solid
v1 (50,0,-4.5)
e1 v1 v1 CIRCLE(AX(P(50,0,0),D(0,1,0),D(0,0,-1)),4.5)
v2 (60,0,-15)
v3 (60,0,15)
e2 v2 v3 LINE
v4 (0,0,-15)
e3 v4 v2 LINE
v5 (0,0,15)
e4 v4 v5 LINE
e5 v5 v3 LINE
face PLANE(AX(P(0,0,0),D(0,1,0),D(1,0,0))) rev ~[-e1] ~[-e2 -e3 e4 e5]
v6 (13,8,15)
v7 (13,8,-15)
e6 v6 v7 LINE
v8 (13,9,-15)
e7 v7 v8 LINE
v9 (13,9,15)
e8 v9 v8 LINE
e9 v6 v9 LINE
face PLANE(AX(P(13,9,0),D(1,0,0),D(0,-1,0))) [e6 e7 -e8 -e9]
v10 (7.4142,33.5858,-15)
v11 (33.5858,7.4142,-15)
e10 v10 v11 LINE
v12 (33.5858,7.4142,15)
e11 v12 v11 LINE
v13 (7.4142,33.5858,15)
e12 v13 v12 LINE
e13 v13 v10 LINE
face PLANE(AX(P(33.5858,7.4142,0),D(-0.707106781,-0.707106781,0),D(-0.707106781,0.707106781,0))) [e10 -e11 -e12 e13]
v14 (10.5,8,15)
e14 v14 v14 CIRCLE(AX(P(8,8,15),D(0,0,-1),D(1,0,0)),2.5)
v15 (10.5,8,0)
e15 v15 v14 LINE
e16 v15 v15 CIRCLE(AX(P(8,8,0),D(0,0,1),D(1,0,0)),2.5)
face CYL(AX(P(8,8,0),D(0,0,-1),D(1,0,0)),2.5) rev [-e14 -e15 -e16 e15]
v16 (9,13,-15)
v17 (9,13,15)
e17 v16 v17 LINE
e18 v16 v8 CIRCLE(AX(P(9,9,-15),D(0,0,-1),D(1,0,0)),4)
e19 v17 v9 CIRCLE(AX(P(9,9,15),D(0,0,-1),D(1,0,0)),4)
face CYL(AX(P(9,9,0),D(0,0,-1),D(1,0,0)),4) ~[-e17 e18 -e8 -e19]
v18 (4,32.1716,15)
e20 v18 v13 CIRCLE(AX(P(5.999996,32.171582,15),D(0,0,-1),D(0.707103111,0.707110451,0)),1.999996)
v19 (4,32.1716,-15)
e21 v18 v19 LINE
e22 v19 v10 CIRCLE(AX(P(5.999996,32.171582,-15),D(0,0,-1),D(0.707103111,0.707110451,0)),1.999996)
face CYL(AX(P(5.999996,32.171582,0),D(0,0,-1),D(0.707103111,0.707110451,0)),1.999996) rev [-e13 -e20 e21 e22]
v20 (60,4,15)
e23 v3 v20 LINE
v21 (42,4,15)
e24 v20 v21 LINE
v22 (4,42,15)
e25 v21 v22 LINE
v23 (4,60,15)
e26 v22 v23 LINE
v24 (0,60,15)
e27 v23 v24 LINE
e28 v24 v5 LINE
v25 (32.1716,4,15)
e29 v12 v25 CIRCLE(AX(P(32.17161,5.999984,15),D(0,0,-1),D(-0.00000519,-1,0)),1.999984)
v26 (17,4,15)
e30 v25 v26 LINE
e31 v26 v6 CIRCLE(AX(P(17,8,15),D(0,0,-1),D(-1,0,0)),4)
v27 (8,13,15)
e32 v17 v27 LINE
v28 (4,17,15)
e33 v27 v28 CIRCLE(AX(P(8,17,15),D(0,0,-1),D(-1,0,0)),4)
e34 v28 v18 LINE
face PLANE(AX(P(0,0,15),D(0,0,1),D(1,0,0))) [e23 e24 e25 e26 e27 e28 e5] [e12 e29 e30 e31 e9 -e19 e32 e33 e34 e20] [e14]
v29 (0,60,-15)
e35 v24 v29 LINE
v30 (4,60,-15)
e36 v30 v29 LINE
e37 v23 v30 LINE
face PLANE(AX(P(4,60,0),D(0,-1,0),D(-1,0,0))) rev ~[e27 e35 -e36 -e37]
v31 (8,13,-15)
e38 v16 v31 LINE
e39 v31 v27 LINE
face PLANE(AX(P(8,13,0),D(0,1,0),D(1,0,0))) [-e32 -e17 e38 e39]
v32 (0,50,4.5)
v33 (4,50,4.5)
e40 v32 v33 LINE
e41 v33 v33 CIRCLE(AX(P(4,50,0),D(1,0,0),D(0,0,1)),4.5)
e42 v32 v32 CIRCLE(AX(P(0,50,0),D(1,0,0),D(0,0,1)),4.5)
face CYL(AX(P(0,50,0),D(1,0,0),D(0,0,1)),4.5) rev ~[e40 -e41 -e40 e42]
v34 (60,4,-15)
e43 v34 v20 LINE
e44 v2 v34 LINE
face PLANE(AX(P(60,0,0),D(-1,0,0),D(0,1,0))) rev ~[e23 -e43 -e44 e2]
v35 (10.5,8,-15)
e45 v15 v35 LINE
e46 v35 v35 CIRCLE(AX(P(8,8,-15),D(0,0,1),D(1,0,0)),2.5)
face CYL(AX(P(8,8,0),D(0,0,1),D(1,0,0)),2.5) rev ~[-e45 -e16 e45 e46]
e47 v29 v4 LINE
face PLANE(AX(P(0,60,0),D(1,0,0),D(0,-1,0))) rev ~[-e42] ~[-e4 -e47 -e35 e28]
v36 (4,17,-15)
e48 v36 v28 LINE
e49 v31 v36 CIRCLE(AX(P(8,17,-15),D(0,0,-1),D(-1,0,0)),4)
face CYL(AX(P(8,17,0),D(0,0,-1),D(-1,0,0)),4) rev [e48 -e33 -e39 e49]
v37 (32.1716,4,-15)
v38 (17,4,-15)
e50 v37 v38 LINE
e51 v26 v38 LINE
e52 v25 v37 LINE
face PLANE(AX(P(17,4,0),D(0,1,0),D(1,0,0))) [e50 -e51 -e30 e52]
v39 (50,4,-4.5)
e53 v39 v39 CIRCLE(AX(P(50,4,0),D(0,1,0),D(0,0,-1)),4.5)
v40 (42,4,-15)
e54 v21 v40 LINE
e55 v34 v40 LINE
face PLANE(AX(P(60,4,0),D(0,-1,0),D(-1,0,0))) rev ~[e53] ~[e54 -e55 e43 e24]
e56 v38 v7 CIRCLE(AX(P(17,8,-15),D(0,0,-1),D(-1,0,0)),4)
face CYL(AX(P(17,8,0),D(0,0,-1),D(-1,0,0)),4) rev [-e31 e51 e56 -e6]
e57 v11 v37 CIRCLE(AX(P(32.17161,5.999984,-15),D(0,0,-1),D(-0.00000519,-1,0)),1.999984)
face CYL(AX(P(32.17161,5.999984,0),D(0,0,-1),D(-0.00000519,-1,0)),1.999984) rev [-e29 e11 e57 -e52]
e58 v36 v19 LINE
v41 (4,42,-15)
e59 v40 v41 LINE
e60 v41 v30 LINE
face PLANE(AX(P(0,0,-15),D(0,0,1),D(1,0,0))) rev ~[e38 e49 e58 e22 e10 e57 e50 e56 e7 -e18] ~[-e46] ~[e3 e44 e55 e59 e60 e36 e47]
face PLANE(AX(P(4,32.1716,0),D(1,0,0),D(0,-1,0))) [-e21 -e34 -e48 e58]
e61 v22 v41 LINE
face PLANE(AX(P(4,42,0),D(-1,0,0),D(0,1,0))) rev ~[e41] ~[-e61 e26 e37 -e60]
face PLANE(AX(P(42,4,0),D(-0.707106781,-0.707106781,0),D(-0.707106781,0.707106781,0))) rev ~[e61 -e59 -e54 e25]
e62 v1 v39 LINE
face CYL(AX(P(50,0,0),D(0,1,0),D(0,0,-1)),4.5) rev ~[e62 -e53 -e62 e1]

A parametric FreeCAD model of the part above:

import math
import FreeCAD as App
import Part
import Sketcher
Q = App.Units.Quantity


def add_polygon(sketch, points):
    """Adds a closed chain of lines whose ends are joined by coincident constraints."""
    first, n = sketch.GeometryCount, len(points)
    for a, b in zip(points, points[1:] + points[:1]):
        sketch.addGeometry(Part.LineSegment(App.Vector(*a, 0), App.Vector(*b, 0)), False)
    for i in range(n):
        sketch.addConstraint(Sketcher.Constraint("Coincident", first + i, 2, first + (i + 1) % n, 1))

doc = App.newDocument("Part")
body = doc.addObject("PartDesign::Body", "Body")

# Sketch on XY plane
sketch1 = body.newObject("Sketcher::SketchObject", "Sketch")
sketch1.AttachmentSupport = (doc.getObject("XY_Plane"), [""])
sketch1.MapMode = "FlatFace"
add_polygon(sketch1, [(0, 60), (0, 0), (60, 0), (60, 4), (42, 4), (4, 42), (4, 60)])  # lines 0-6
sketch1.addConstraint(Sketcher.Constraint("Vertical", 0))
sketch1.addConstraint(Sketcher.Constraint("Horizontal", 1))
sketch1.addConstraint(Sketcher.Constraint("Vertical", 2))
sketch1.addConstraint(Sketcher.Constraint("Horizontal", 3))
sketch1.addConstraint(Sketcher.Constraint("Vertical", 5))
sketch1.addConstraint(Sketcher.Constraint("Horizontal", 6))
sketch1.addConstraint(Sketcher.Constraint("Coincident", 0, 2, -1, 1))
sketch1.addConstraint(Sketcher.Constraint("Equal", 1, 0))
sketch1.addConstraint(Sketcher.Constraint("Equal", 6, 2))
sketch1.addConstraint(Sketcher.Constraint("Equal", 3, 5))
sketch1.addConstraint(Sketcher.Constraint("DistanceX", 1, 1, 1, 2, Q("60 mm")))
sketch1.addConstraint(Sketcher.Constraint("DistanceX", 3, 2, 3, 1, Q("18 mm")))
sketch1.addConstraint(Sketcher.Constraint("DistanceX", 6, 2, 6, 1, Q("4 mm")))
pad1 = body.newObject("PartDesign::Pad", "Pad")
pad1.Profile = sketch1
pad1.Length = 30
pad1.Midplane = True

# Sketch on XY plane
sketch2 = body.newObject("Sketcher::SketchObject", "Sketch001")
sketch2.AttachmentSupport = (doc.getObject("XY_Plane"), [""])
sketch2.MapMode = "FlatFace"
sketch2.addGeometry(Part.LineSegment(App.Vector(4, 32.2, 0), App.Vector(4, 17, 0)), False)
sketch2.addGeometry(Part.ArcOfCircle(Part.Circle(App.Vector(8, 17, 0), App.Vector(0, 0, 1), 4), math.radians(180), math.radians(270)), False)
sketch2.addGeometry(Part.LineSegment(App.Vector(8, 13, 0), App.Vector(9, 13, 0)), False)
sketch2.addGeometry(Part.ArcOfCircle(Part.Circle(App.Vector(9, 9, 0), App.Vector(0, 0, 1), 4), math.radians(0), math.radians(90)), False)
sketch2.addGeometry(Part.LineSegment(App.Vector(13, 9, 0), App.Vector(13, 8, 0)), False)
sketch2.addGeometry(Part.ArcOfCircle(Part.Circle(App.Vector(17, 8, 0), App.Vector(0, 0, 1), 4), math.radians(180), math.radians(270)), False)
sketch2.addGeometry(Part.LineSegment(App.Vector(17, 4, 0), App.Vector(32.2, 4, 0)), False)
sketch2.addGeometry(Part.ArcOfCircle(Part.Circle(App.Vector(32.2, 6, 0), App.Vector(0, 0, 1), 2), math.radians(-90), math.radians(45)), False)
sketch2.addGeometry(Part.LineSegment(App.Vector(33.6, 7.4, 0), App.Vector(7.4, 33.6, 0)), False)
sketch2.addGeometry(Part.ArcOfCircle(Part.Circle(App.Vector(6, 32.2, 0), App.Vector(0, 0, 1), 2), math.radians(45), math.radians(180)), False)
sketch2.addConstraint(Sketcher.Constraint("Tangent", 0, 2, 1, 1))
sketch2.addConstraint(Sketcher.Constraint("Tangent", 1, 2, 2, 1))
sketch2.addConstraint(Sketcher.Constraint("Tangent", 2, 2, 3, 2))
sketch2.addConstraint(Sketcher.Constraint("Tangent", 3, 1, 4, 1))
sketch2.addConstraint(Sketcher.Constraint("Tangent", 4, 2, 5, 1))
sketch2.addConstraint(Sketcher.Constraint("Tangent", 5, 2, 6, 1))
sketch2.addConstraint(Sketcher.Constraint("Tangent", 6, 2, 7, 1))
sketch2.addConstraint(Sketcher.Constraint("Tangent", 7, 2, 8, 1))
sketch2.addConstraint(Sketcher.Constraint("Tangent", 8, 2, 9, 1))
sketch2.addConstraint(Sketcher.Constraint("Tangent", 9, 2, 0, 1))
sketch2.addConstraint(Sketcher.Constraint("Vertical", 0))
sketch2.addConstraint(Sketcher.Constraint("Horizontal", 2))
sketch2.addConstraint(Sketcher.Constraint("Vertical", 4))
sketch2.addConstraint(Sketcher.Constraint("Horizontal", 6))
sketch2.addConstraint(Sketcher.Constraint("Equal", 1, 3))
sketch2.addConstraint(Sketcher.Constraint("Equal", 3, 5))
sketch2.addConstraint(Sketcher.Constraint("Equal", 7, 9))
sketch2.addConstraint(Sketcher.Constraint("Equal", 6, 0))
sketch2.addConstraint(Sketcher.Constraint("Equal", 2, 4))
sketch2.addConstraint(Sketcher.Constraint("Radius", 1, Q("4 mm")))
sketch2.addConstraint(Sketcher.Constraint("Radius", 7, Q("2 mm")))
sketch2.addConstraint(Sketcher.Constraint("DistanceX", 2, 1, 2, 2, Q("1 mm")))
sketch2.addConstraint(Sketcher.Constraint("DistanceX", -1, 1, 1, 3, Q("8 mm")))
sketch2.addConstraint(Sketcher.Constraint("DistanceY", -1, 1, 1, 3, Q("17 mm")))
sketch2.addConstraint(Sketcher.Constraint("DistanceX", 6, 1, 6, 2, Q("15.1716 mm")))
pocket1 = body.newObject("PartDesign::Pocket", "Pocket")
pocket1.Profile = sketch2
pocket1.Length = 32
pocket1.Midplane = True

# Sketch on XY plane
sketch3 = body.newObject("Sketcher::SketchObject", "Sketch002")
sketch3.AttachmentSupport = (doc.getObject("XY_Plane"), [""])
sketch3.MapMode = "FlatFace"
sketch3.addGeometry(Part.Circle(App.Vector(8, 8, 0), App.Vector(0, 0, 1), 2.5), False)
sketch3.addConstraint(Sketcher.Constraint("Diameter", 0, Q("5 mm")))
sketch3.addConstraint(Sketcher.Constraint("DistanceX", -1, 1, 0, 3, Q("8 mm")))
sketch3.addConstraint(Sketcher.Constraint("DistanceY", -1, 1, 0, 3, Q("8 mm")))
pocket2 = body.newObject("PartDesign::Pocket", "Pocket001")
pocket2.Profile = sketch3
pocket2.Length = 32
pocket2.Midplane = True

# Sketch on XZ plane
sketch4 = body.newObject("Sketcher::SketchObject", "Sketch003")
sketch4.AttachmentSupport = (doc.getObject("XZ_Plane"), [""])
sketch4.MapMode = "FlatFace"
sketch4.addGeometry(Part.Circle(App.Vector(50, 0, 0), App.Vector(0, 0, 1), 4.5), False)
sketch4.addConstraint(Sketcher.Constraint("PointOnObject", 0, 3, -1))
sketch4.addConstraint(Sketcher.Constraint("Diameter", 0, Q("9 mm")))
sketch4.addConstraint(Sketcher.Constraint("DistanceX", -1, 1, 0, 3, Q("50 mm")))
doc.recompute()
hole = body.newObject("PartDesign::Hole", "Hole")
hole.Profile = sketch4
hole.ThreadType = "None"
hole.Diameter = 9
hole.DepthType = "Dimension"
hole.Depth = 5
hole.DrillPoint = "Flat"

# Sketch on YZ plane
sketch5 = body.newObject("Sketcher::SketchObject", "Sketch004")
sketch5.AttachmentSupport = (doc.getObject("YZ_Plane"), [""])
sketch5.MapMode = "FlatFace"
sketch5.addGeometry(Part.Circle(App.Vector(50, 0, 0), App.Vector(0, 0, 1), 4.5), False)
sketch5.addConstraint(Sketcher.Constraint("PointOnObject", 0, 3, -1))
sketch5.addConstraint(Sketcher.Constraint("Diameter", 0, Q("9 mm")))
sketch5.addConstraint(Sketcher.Constraint("DistanceX", -1, 1, 0, 3, Q("50 mm")))
doc.recompute()
hole2 = body.newObject("PartDesign::Hole", "Hole001")
hole2.Profile = sketch5
hole2.ThreadType = "None"
hole2.Diameter = 9
hole2.DepthType = "Dimension"
hole2.Depth = 5
hole2.DrillPoint = "Flat"
hole2.Reversed = True

doc.recompute()
